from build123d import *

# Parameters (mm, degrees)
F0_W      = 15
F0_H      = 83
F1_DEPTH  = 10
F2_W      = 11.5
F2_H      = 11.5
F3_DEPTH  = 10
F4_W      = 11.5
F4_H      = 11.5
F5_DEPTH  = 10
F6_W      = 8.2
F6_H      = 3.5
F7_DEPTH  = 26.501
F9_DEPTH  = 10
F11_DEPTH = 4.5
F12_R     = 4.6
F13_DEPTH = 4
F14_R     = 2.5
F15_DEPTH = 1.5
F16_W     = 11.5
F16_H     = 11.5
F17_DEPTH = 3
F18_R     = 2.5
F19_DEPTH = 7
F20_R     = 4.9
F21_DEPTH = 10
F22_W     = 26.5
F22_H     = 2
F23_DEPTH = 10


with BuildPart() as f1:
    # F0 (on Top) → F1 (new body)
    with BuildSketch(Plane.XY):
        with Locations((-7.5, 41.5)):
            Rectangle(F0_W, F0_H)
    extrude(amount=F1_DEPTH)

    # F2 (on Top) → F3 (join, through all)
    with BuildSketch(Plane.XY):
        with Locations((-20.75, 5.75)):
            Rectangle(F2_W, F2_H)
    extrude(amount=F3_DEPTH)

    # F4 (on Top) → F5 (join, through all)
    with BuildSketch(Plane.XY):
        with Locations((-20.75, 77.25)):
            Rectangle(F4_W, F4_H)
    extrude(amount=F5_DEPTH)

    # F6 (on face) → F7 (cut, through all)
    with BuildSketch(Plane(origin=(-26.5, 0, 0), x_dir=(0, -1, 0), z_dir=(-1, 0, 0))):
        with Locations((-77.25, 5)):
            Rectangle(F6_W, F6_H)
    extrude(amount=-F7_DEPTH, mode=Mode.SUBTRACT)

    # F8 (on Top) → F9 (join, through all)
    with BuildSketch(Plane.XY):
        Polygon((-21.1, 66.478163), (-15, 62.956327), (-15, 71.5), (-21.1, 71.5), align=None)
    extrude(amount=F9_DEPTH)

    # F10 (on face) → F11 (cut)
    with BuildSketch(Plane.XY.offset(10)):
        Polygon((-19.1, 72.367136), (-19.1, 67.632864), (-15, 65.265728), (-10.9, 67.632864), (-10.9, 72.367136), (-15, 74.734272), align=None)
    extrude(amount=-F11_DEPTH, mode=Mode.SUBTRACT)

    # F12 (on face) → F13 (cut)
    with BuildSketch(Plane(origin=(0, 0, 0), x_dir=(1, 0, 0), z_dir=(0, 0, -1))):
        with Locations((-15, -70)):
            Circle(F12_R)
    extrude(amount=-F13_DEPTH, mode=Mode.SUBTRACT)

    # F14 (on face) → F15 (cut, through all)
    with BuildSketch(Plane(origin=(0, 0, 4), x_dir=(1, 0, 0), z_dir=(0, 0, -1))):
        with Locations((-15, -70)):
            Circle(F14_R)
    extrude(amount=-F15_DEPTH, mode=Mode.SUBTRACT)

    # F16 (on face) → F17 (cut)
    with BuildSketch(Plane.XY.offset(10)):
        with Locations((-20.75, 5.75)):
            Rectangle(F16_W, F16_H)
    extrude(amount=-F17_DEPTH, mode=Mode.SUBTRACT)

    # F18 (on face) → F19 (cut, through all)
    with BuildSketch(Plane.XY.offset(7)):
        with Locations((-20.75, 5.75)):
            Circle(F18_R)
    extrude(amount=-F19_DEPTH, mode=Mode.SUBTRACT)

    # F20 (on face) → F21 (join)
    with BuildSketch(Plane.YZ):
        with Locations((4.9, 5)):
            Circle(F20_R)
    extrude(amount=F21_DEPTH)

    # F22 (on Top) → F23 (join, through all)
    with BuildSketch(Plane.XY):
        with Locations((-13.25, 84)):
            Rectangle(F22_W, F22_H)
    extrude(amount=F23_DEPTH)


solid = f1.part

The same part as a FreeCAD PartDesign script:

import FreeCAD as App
import Part
import Sketcher
from FreeCAD import Vector
Q = App.Units.Quantity


def add_polygon(sketch, points):
    """Adds a closed chain of lines whose ends are joined by coincident constraints."""
    first, n = sketch.GeometryCount, len(points)
    for a, b in zip(points, points[1:] + points[:1]):
        sketch.addGeometry(Part.LineSegment(App.Vector(*a, 0), App.Vector(*b, 0)), False)
    for i in range(n):
        sketch.addConstraint(Sketcher.Constraint("Coincident", first + i, 2, first + (i + 1) % n, 1))

doc = App.newDocument("Part")
params = doc.addObject("Spreadsheet::Sheet", "Params")
for row, (alias, value) in enumerate([
    ("sketch1_width", "15 mm"),
    ("sketch1_height", "83 mm"),
    ("pad1_length", "10 mm"),
    ("sketch2_width", "11.5 mm"),
    ("pad2_length", "10 mm"),
    ("sketch3_width", "11.5 mm"),
    ("pad3_length", "10 mm"),
    ("sketch4_width", "8.2 mm"),
    ("sketch4_height", "3.5 mm"),
    ("sketch5_width", "6.1 mm"),
    ("pad4_length", "10 mm"),
    ("pocket2_length", "4.5 mm"),
    ("sketch7_diameter", "9.2 mm"),
    ("pocket3_length", "4 mm"),
    ("sketch8_diameter", "5 mm"),
    ("sketch9_width", "11.5 mm"),
    ("pocket5_length", "3 mm"),
    ("sketch10_diameter", "5 mm"),
    ("sketch11_diameter", "9.8 mm"),
    ("pad5_length", "10 mm"),
    ("sketch12_height", "2 mm"),
    ("sketch12_width", "26.5 mm"),
    ("pad6_length", "10 mm"),
], start=1):
    params.set(f"A{row}", alias)
    params.set(f"B{row}", "=" + value)
    params.setAlias(f"B{row}", alias)

body = doc.addObject("PartDesign::Body", "Body")

sketch1 = body.newObject("Sketcher::SketchObject", "Sketch")
sketch1.AttachmentSupport = (doc.getObject("XY_Plane"), [""])
sketch1.MapMode = "FlatFace"
add_polygon(sketch1, [(-15, 83), (-15, 0), (0, 0), (0, 83)])
sketch1.addConstraint([
    Sketcher.Constraint("Vertical", 0),
    Sketcher.Constraint("Horizontal", 1),
    Sketcher.Constraint("Vertical", 2),
    Sketcher.Constraint("Horizontal", 3),
    Sketcher.Constraint("Coincident", 1, 2, -1, 1),
    Sketcher.Constraint("DistanceX", 1, 1, 1, 2, 15.0),
    Sketcher.Constraint("DistanceY", 0, 2, 0, 1, 83.0),
])
sketch1.setExpression("Constraints[9]", "Params.sketch1_width")
sketch1.setExpression("Constraints[10]", "Params.sketch1_height")
pad1 = body.newObject("PartDesign::Pad", "Pad")
pad1.Profile = sketch1
pad1.setExpression("Length", "Params.pad1_length")

sketch2 = body.newObject("Sketcher::SketchObject", "Sketch001")
sketch2.AttachmentSupport = (doc.getObject("XY_Plane"), [""])
sketch2.MapMode = "FlatFace"
add_polygon(sketch2, [(-26, 12), (-26, 0), (-15, 0), (-15, 12)])
sketch2.addConstraint([
    Sketcher.Constraint("Vertical", 0),
    Sketcher.Constraint("Horizontal", 1),
    Sketcher.Constraint("Vertical", 2),
    Sketcher.Constraint("Horizontal", 3),
    Sketcher.Constraint("PointOnObject", 0, 2, -1),
    Sketcher.Constraint("Equal", 3, 0),
    Sketcher.Constraint("DistanceX", 1, 1, 1, 2, 11.5),
    Sketcher.Constraint("DistanceX", 1, 2, -1, 1, 15.0),
])
sketch2.setExpression("Constraints[10]", "Params.sketch2_width")
pad2 = body.newObject("PartDesign::Pad", "Pad001")
pad2.Profile = sketch2
pad2.setExpression("Length", "Params.pad2_length")

sketch3 = body.newObject("Sketcher::SketchObject", "Sketch002")
sketch3.AttachmentSupport = (doc.getObject("XY_Plane"), [""])
sketch3.MapMode = "FlatFace"
add_polygon(sketch3, [(-26, 83), (-26, 72), (-15, 72), (-15, 83)])
sketch3.addConstraint([
    Sketcher.Constraint("Vertical", 0),
    Sketcher.Constraint("Horizontal", 1),
    Sketcher.Constraint("Vertical", 2),
    Sketcher.Constraint("Horizontal", 3),
    Sketcher.Constraint("Equal", 3, 0),
    Sketcher.Constraint("DistanceX", 1, 1, 1, 2, 11.5),
    Sketcher.Constraint("DistanceX", 1, 2, -1, 1, 15.0),
    Sketcher.Constraint("DistanceY", -1, 1, 2, 2, 83.0),
])
sketch3.setExpression("Constraints[9]", "Params.sketch3_width")
pad3 = body.newObject("PartDesign::Pad", "Pad002")
pad3.Profile = sketch3
pad3.setExpression("Length", "Params.pad3_length")

sketch4 = body.newObject("Sketcher::SketchObject", "Sketch003")
sketch4.AttachmentSupport = (doc.getObject("YZ_Plane"), [""])
sketch4.MapMode = "FlatFace"
sketch4.AttachmentOffset = App.Placement(Vector(0, 0, -26.5), App.Rotation())
add_polygon(sketch4, [(81.3, 6.8), (81.3, 3.2), (73.2, 3.2), (73.2, 6.8)])
sketch4.addConstraint([
    Sketcher.Constraint("Vertical", 0),
    Sketcher.Constraint("Horizontal", 1),
    Sketcher.Constraint("Vertical", 2),
    Sketcher.Constraint("Horizontal", 3),
    Sketcher.Constraint("DistanceX", 1, 2, 1, 1, 8.2),
    Sketcher.Constraint("DistanceY", 0, 2, 0, 1, 3.5),
    Sketcher.Constraint("DistanceX", -1, 1, 0, 2, 81.35),
    Sketcher.Constraint("DistanceY", -1, 1, 0, 2, 3.25),
])
sketch4.setExpression("Constraints[8]", "Params.sketch4_width")
sketch4.setExpression("Constraints[9]", "Params.sketch4_height")
pocket1 = body.newObject("PartDesign::Pocket", "Pocket")
pocket1.Profile = sketch4
pocket1.Type = "ThroughAll"
pocket1.Reversed = True

sketch5 = body.newObject("Sketcher::SketchObject", "Sketch004")
sketch5.AttachmentSupport = (doc.getObject("XY_Plane"), [""])
sketch5.MapMode = "FlatFace"
add_polygon(sketch5, [(-21, 66), (-15, 63), (-15, 72), (-21, 72)])
sketch5.addConstraint([
    Sketcher.Constraint("Vertical", 1),
    Sketcher.Constraint("Horizontal", 2),
    Sketcher.Constraint("Vertical", 3),
    Sketcher.Constraint("Angle", 0, Q("-29.999995 deg")),
    Sketcher.Constraint("DistanceX", 2, 2, 2, 1, 6.1),
    Sketcher.Constraint("DistanceX", 0, 2, -1, 1, 15.0),
    Sketcher.Constraint("DistanceY", -1, 1, 1, 2, 71.5),
    Sketcher.Constraint("DistanceY", 1, 1, 1, 2, 8.543673),
])
sketch5.setExpression("Constraints[8]", "Params.sketch5_width")
pad4 = body.newObject("PartDesign::Pad", "Pad003")
pad4.Profile = sketch5
pad4.setExpression("Length", "Params.pad4_length")

sketch6 = body.newObject("Sketcher::SketchObject", "Sketch005")
sketch6.AttachmentSupport = (doc.getObject("XY_Plane"), [""])
sketch6.MapMode = "FlatFace"
sketch6.AttachmentOffset = App.Placement(Vector(0, 0, 10), App.Rotation())
add_polygon(sketch6, [(-19.1, 72.4), (-19.1, 67.6), (-15, 65.3), (-10.9, 67.6), (-10.9, 72.4), (-15, 74.7)])
sketch6.addConstraint([
    Sketcher.Constraint("Vertical", 0),
    Sketcher.Constraint("Vertical", 3),
    Sketcher.Constraint("Parallel", 1, 4),
    Sketcher.Constraint("Parallel", 2, 5),
    Sketcher.Constraint("Horizontal", 0, 2, 2, 2),
    Sketcher.Constraint("Horizontal", 3, 2, 5, 2),
    Sketcher.Constraint("Vertical", 1, 2, 4, 2),
    Sketcher.Constraint("Angle", 1, Q("-29.999999 deg")),
    Sketcher.Constraint("DistanceX", 1, 2, -1, 1, 15.0),
    Sketcher.Constraint("DistanceX", 0, 2, -1, 1, 19.1),
    Sketcher.Constraint("DistanceY", 0, 2, 0, 1, 4.734272),
    Sketcher.Constraint("DistanceY", -1, 1, 0, 2, 67.632864),
])
pocket2 = body.newObject("PartDesign::Pocket", "Pocket001")
pocket2.Profile = sketch6
pocket2.setExpression("Length", "Params.pocket2_length")

sketch7 = body.newObject("Sketcher::SketchObject", "Sketch006")
sketch7.AttachmentSupport = (doc.getObject("XY_Plane"), [""])
sketch7.MapMode = "FlatFace"
sketch7.addGeometry(Part.Circle(Vector(-15, 70, 0), Vector(0, 0, 1), 4.6), False)
sketch7.addConstraint([
    Sketcher.Constraint("Diameter", 0, 9.2),
    Sketcher.Constraint("DistanceX", 0, 3, -1, 1, 15.0),
    Sketcher.Constraint("DistanceY", -1, 1, 0, 3, 70.0),
])
sketch7.setExpression("Constraints[0]", "Params.sketch7_diameter")
pocket3 = body.newObject("PartDesign::Pocket", "Pocket002")
pocket3.Profile = sketch7
pocket3.setExpression("Length", "Params.pocket3_length")
pocket3.Reversed = True

sketch8 = body.newObject("Sketcher::SketchObject", "Sketch007")
sketch8.AttachmentSupport = (doc.getObject("XY_Plane"), [""])
sketch8.MapMode = "FlatFace"
sketch8.AttachmentOffset = App.Placement(Vector(0, 0, 4), App.Rotation())
sketch8.addGeometry(Part.Circle(Vector(-15, 70, 0), Vector(0, 0, 1), 2.5), False)
sketch8.addConstraint([
    Sketcher.Constraint("Diameter", 0, 5.0),
    Sketcher.Constraint("DistanceX", 0, 3, -1, 1, 15.0),
    Sketcher.Constraint("DistanceY", -1, 1, 0, 3, 70.0),
])
sketch8.setExpression("Constraints[0]", "Params.sketch8_diameter")
pocket4 = body.newObject("PartDesign::Pocket", "Pocket003")
pocket4.Profile = sketch8
pocket4.Type = "ThroughAll"
pocket4.Reversed = True

sketch9 = body.newObject("Sketcher::SketchObject", "Sketch008")
sketch9.AttachmentSupport = (doc.getObject("XY_Plane"), [""])
sketch9.MapMode = "FlatFace"
sketch9.AttachmentOffset = App.Placement(Vector(0, 0, 10), App.Rotation())
add_polygon(sketch9, [(-26, 12), (-26, 0), (-15, 0), (-15, 12)])
sketch9.addConstraint([
    Sketcher.Constraint("Vertical", 0),
    Sketcher.Constraint("Horizontal", 1),
    Sketcher.Constraint("Vertical", 2),
    Sketcher.Constraint("Horizontal", 3),
    Sketcher.Constraint("PointOnObject", 0, 2, -1),
    Sketcher.Constraint("Equal", 3, 0),
    Sketcher.Constraint("DistanceX", 1, 1, 1, 2, 11.5),
    Sketcher.Constraint("DistanceX", 1, 2, -1, 1, 15.0),
])
sketch9.setExpression("Constraints[10]", "Params.sketch9_width")
pocket5 = body.newObject("PartDesign::Pocket", "Pocket004")
pocket5.Profile = sketch9
pocket5.setExpression("Length", "Params.pocket5_length")

sketch10 = body.newObject("Sketcher::SketchObject", "Sketch009")
sketch10.AttachmentSupport = (doc.getObject("XY_Plane"), [""])
sketch10.MapMode = "FlatFace"
sketch10.AttachmentOffset = App.Placement(Vector(0, 0, 7), App.Rotation())
sketch10.addGeometry(Part.Circle(Vector(-20.8, 5.8, 0), Vector(0, 0, 1), 2.5), False)
sketch10.addConstraint([
    Sketcher.Constraint("Diameter", 0, 5.0),
    Sketcher.Constraint("DistanceX", 0, 3, -1, 1, 20.75),
    Sketcher.Constraint("DistanceY", -1, 1, 0, 3, 5.75),
])
sketch10.setExpression("Constraints[0]", "Params.sketch10_diameter")
pocket6 = body.newObject("PartDesign::Pocket", "Pocket005")
pocket6.Profile = sketch10
pocket6.Type = "ThroughAll"

sketch11 = body.newObject("Sketcher::SketchObject", "Sketch010")
sketch11.AttachmentSupport = (doc.getObject("YZ_Plane"), [""])
sketch11.MapMode = "FlatFace"
sketch11.addGeometry(Part.Circle(Vector(4.9, 5, 0), Vector(0, 0, 1), 4.9), False)
sketch11.addConstraint([
    Sketcher.Constraint("Diameter", 0, 9.8),
    Sketcher.Constraint("DistanceY", -1, 1, 0, 3, 5.0),
    Sketcher.Constraint("DistanceX", -1, 1, 0, 3, 4.9),
])
sketch11.setExpression("Constraints[0]", "Params.sketch11_diameter")
pad5 = body.newObject("PartDesign::Pad", "Pad004")
pad5.Profile = sketch11
pad5.setExpression("Length", "Params.pad5_length")

sketch12 = body.newObject("Sketcher::SketchObject", "Sketch011")
sketch12.AttachmentSupport = (doc.getObject("XY_Plane"), [""])
sketch12.MapMode = "FlatFace"
add_polygon(sketch12, [(-26.5, 85), (-26.5, 83), (0, 83), (0, 85)])
sketch12.addConstraint([
    Sketcher.Constraint("Vertical", 0),
    Sketcher.Constraint("Horizontal", 1),
    Sketcher.Constraint("Vertical", 2),
    Sketcher.Constraint("Horizontal", 3),
    Sketcher.Constraint("PointOnObject", 1, 2, -2),
    Sketcher.Constraint("DistanceY", 0, 2, 0, 1, 2.0),
    Sketcher.Constraint("DistanceX", 1, 1, 1, 2, 26.5),
    Sketcher.Constraint("DistanceY", -1, 1, 0, 2, 83.0),
])
sketch12.setExpression("Constraints[9]", "Params.sketch12_height")
sketch12.setExpression("Constraints[10]", "Params.sketch12_width")
pad6 = body.newObject("PartDesign::Pad", "Pad005")
pad6.Profile = sketch12
pad6.setExpression("Length", "Params.pad6_length")

doc.recompute()
